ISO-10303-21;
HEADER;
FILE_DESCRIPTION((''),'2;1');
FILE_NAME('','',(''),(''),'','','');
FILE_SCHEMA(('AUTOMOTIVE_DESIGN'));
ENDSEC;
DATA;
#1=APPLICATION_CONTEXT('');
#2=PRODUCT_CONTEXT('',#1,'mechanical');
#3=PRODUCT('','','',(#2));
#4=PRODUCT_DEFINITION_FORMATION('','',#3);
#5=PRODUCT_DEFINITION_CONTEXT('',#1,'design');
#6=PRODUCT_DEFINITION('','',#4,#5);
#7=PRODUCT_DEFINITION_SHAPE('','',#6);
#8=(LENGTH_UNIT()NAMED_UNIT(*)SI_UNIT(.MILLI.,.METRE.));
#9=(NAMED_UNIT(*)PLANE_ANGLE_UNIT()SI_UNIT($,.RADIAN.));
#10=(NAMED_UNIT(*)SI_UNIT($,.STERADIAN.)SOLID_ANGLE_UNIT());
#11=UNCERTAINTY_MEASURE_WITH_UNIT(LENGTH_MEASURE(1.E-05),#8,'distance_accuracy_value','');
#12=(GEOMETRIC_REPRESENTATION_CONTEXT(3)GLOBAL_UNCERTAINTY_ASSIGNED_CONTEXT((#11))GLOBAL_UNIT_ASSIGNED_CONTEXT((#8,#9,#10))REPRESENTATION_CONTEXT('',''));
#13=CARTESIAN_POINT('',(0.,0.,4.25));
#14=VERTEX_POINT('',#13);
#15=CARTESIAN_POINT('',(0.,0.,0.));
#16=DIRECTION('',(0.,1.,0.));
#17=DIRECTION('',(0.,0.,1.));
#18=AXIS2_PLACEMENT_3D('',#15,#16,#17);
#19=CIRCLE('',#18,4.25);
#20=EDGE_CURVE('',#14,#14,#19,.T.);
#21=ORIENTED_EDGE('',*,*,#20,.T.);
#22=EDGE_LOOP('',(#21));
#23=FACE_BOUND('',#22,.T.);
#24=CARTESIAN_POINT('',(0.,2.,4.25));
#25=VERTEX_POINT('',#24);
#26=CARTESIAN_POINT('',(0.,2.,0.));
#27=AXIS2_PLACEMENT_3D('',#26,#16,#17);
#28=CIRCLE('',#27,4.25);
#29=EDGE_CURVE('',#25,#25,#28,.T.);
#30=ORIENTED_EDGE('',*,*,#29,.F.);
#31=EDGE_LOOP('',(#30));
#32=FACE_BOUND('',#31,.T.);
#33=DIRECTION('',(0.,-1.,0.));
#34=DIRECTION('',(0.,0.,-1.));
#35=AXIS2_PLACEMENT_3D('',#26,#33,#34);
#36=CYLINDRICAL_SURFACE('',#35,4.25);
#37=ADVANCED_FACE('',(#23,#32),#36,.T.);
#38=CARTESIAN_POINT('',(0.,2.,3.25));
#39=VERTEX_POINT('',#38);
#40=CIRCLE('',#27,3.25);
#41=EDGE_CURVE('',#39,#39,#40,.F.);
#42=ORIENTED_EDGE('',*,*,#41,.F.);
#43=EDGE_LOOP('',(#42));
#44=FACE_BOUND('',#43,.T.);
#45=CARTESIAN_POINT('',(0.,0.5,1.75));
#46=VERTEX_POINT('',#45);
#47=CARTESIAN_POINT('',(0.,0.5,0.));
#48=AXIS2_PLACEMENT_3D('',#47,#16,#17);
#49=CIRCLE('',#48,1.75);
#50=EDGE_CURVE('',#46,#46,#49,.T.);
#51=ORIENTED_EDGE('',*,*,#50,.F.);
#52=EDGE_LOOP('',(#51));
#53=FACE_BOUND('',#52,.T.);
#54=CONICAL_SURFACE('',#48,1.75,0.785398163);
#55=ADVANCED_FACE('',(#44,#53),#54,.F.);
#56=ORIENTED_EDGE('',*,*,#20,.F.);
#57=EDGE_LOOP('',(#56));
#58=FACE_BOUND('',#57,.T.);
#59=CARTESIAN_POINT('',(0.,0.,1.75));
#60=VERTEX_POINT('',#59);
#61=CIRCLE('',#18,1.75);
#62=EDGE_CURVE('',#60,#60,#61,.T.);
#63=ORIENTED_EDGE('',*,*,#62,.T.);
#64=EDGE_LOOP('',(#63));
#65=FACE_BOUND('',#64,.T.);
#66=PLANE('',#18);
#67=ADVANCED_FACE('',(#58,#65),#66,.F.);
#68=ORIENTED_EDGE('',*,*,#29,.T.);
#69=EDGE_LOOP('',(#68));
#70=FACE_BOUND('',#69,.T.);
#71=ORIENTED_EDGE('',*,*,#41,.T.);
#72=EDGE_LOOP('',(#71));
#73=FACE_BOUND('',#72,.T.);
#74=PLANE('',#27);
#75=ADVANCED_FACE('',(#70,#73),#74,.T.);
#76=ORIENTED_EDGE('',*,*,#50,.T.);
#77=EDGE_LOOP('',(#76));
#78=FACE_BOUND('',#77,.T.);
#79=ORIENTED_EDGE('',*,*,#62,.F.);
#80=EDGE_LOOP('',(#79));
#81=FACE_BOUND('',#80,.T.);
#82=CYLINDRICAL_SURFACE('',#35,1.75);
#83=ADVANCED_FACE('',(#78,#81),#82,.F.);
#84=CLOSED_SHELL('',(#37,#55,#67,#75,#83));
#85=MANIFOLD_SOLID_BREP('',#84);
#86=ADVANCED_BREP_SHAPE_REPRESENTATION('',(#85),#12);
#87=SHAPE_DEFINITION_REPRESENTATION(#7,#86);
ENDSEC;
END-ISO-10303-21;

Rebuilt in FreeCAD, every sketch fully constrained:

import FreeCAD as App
import Part
import Sketcher
from FreeCAD import Vector
Q = App.Units.Quantity


def edges_at(feature, points):
    """Names of the edges that pass closest to the given points."""
    edges = feature.Shape.Edges
    near = lambda p: min(range(len(edges)), key=lambda i: edges[i].distToShape(Part.Vertex(*p))[0])
    return sorted({f"Edge{near(p) + 1}" for p in points})

doc = App.newDocument("Part")
body = doc.addObject("PartDesign::Body", "Body")

# Sketch on XZ plane
sketch1 = doc.addObject("Sketcher::SketchObject", "Sketch")
body.addObject(sketch1)
sketch1.AttachmentSupport = (doc.XZ_Plane, [""])
sketch1.MapMode = "FlatFace"
sketch1.addGeometry([
    Part.Circle(Vector(0, 0, 0), Vector(0, 0, 1), 4.25),
    Part.Circle(Vector(0, 0, 0), Vector(0, 0, 1), 1.75),
], False)
sketch1.addConstraint([
    Sketcher.Constraint("Coincident", 0, 3, -1, 1),
    Sketcher.Constraint("Coincident", 1, 3, -1, 1),
    Sketcher.Constraint("Diameter", 0, Q("8.5 mm")),
    Sketcher.Constraint("Diameter", 1, Q("3.5 mm")),
])
pad1 = doc.addObject("PartDesign::Pad", "Pad")
body.addObject(pad1)
pad1.Profile = sketch1
pad1.Length = 2
pad1.Reversed = True
doc.recompute()

chamfer = doc.addObject("PartDesign::Chamfer", "Chamfer")
body.addObject(chamfer)
chamfer.Base = (pad1, edges_at(pad1, [(-1.75, 2, 0)]))
chamfer.Size = 1.5

doc.recompute()
